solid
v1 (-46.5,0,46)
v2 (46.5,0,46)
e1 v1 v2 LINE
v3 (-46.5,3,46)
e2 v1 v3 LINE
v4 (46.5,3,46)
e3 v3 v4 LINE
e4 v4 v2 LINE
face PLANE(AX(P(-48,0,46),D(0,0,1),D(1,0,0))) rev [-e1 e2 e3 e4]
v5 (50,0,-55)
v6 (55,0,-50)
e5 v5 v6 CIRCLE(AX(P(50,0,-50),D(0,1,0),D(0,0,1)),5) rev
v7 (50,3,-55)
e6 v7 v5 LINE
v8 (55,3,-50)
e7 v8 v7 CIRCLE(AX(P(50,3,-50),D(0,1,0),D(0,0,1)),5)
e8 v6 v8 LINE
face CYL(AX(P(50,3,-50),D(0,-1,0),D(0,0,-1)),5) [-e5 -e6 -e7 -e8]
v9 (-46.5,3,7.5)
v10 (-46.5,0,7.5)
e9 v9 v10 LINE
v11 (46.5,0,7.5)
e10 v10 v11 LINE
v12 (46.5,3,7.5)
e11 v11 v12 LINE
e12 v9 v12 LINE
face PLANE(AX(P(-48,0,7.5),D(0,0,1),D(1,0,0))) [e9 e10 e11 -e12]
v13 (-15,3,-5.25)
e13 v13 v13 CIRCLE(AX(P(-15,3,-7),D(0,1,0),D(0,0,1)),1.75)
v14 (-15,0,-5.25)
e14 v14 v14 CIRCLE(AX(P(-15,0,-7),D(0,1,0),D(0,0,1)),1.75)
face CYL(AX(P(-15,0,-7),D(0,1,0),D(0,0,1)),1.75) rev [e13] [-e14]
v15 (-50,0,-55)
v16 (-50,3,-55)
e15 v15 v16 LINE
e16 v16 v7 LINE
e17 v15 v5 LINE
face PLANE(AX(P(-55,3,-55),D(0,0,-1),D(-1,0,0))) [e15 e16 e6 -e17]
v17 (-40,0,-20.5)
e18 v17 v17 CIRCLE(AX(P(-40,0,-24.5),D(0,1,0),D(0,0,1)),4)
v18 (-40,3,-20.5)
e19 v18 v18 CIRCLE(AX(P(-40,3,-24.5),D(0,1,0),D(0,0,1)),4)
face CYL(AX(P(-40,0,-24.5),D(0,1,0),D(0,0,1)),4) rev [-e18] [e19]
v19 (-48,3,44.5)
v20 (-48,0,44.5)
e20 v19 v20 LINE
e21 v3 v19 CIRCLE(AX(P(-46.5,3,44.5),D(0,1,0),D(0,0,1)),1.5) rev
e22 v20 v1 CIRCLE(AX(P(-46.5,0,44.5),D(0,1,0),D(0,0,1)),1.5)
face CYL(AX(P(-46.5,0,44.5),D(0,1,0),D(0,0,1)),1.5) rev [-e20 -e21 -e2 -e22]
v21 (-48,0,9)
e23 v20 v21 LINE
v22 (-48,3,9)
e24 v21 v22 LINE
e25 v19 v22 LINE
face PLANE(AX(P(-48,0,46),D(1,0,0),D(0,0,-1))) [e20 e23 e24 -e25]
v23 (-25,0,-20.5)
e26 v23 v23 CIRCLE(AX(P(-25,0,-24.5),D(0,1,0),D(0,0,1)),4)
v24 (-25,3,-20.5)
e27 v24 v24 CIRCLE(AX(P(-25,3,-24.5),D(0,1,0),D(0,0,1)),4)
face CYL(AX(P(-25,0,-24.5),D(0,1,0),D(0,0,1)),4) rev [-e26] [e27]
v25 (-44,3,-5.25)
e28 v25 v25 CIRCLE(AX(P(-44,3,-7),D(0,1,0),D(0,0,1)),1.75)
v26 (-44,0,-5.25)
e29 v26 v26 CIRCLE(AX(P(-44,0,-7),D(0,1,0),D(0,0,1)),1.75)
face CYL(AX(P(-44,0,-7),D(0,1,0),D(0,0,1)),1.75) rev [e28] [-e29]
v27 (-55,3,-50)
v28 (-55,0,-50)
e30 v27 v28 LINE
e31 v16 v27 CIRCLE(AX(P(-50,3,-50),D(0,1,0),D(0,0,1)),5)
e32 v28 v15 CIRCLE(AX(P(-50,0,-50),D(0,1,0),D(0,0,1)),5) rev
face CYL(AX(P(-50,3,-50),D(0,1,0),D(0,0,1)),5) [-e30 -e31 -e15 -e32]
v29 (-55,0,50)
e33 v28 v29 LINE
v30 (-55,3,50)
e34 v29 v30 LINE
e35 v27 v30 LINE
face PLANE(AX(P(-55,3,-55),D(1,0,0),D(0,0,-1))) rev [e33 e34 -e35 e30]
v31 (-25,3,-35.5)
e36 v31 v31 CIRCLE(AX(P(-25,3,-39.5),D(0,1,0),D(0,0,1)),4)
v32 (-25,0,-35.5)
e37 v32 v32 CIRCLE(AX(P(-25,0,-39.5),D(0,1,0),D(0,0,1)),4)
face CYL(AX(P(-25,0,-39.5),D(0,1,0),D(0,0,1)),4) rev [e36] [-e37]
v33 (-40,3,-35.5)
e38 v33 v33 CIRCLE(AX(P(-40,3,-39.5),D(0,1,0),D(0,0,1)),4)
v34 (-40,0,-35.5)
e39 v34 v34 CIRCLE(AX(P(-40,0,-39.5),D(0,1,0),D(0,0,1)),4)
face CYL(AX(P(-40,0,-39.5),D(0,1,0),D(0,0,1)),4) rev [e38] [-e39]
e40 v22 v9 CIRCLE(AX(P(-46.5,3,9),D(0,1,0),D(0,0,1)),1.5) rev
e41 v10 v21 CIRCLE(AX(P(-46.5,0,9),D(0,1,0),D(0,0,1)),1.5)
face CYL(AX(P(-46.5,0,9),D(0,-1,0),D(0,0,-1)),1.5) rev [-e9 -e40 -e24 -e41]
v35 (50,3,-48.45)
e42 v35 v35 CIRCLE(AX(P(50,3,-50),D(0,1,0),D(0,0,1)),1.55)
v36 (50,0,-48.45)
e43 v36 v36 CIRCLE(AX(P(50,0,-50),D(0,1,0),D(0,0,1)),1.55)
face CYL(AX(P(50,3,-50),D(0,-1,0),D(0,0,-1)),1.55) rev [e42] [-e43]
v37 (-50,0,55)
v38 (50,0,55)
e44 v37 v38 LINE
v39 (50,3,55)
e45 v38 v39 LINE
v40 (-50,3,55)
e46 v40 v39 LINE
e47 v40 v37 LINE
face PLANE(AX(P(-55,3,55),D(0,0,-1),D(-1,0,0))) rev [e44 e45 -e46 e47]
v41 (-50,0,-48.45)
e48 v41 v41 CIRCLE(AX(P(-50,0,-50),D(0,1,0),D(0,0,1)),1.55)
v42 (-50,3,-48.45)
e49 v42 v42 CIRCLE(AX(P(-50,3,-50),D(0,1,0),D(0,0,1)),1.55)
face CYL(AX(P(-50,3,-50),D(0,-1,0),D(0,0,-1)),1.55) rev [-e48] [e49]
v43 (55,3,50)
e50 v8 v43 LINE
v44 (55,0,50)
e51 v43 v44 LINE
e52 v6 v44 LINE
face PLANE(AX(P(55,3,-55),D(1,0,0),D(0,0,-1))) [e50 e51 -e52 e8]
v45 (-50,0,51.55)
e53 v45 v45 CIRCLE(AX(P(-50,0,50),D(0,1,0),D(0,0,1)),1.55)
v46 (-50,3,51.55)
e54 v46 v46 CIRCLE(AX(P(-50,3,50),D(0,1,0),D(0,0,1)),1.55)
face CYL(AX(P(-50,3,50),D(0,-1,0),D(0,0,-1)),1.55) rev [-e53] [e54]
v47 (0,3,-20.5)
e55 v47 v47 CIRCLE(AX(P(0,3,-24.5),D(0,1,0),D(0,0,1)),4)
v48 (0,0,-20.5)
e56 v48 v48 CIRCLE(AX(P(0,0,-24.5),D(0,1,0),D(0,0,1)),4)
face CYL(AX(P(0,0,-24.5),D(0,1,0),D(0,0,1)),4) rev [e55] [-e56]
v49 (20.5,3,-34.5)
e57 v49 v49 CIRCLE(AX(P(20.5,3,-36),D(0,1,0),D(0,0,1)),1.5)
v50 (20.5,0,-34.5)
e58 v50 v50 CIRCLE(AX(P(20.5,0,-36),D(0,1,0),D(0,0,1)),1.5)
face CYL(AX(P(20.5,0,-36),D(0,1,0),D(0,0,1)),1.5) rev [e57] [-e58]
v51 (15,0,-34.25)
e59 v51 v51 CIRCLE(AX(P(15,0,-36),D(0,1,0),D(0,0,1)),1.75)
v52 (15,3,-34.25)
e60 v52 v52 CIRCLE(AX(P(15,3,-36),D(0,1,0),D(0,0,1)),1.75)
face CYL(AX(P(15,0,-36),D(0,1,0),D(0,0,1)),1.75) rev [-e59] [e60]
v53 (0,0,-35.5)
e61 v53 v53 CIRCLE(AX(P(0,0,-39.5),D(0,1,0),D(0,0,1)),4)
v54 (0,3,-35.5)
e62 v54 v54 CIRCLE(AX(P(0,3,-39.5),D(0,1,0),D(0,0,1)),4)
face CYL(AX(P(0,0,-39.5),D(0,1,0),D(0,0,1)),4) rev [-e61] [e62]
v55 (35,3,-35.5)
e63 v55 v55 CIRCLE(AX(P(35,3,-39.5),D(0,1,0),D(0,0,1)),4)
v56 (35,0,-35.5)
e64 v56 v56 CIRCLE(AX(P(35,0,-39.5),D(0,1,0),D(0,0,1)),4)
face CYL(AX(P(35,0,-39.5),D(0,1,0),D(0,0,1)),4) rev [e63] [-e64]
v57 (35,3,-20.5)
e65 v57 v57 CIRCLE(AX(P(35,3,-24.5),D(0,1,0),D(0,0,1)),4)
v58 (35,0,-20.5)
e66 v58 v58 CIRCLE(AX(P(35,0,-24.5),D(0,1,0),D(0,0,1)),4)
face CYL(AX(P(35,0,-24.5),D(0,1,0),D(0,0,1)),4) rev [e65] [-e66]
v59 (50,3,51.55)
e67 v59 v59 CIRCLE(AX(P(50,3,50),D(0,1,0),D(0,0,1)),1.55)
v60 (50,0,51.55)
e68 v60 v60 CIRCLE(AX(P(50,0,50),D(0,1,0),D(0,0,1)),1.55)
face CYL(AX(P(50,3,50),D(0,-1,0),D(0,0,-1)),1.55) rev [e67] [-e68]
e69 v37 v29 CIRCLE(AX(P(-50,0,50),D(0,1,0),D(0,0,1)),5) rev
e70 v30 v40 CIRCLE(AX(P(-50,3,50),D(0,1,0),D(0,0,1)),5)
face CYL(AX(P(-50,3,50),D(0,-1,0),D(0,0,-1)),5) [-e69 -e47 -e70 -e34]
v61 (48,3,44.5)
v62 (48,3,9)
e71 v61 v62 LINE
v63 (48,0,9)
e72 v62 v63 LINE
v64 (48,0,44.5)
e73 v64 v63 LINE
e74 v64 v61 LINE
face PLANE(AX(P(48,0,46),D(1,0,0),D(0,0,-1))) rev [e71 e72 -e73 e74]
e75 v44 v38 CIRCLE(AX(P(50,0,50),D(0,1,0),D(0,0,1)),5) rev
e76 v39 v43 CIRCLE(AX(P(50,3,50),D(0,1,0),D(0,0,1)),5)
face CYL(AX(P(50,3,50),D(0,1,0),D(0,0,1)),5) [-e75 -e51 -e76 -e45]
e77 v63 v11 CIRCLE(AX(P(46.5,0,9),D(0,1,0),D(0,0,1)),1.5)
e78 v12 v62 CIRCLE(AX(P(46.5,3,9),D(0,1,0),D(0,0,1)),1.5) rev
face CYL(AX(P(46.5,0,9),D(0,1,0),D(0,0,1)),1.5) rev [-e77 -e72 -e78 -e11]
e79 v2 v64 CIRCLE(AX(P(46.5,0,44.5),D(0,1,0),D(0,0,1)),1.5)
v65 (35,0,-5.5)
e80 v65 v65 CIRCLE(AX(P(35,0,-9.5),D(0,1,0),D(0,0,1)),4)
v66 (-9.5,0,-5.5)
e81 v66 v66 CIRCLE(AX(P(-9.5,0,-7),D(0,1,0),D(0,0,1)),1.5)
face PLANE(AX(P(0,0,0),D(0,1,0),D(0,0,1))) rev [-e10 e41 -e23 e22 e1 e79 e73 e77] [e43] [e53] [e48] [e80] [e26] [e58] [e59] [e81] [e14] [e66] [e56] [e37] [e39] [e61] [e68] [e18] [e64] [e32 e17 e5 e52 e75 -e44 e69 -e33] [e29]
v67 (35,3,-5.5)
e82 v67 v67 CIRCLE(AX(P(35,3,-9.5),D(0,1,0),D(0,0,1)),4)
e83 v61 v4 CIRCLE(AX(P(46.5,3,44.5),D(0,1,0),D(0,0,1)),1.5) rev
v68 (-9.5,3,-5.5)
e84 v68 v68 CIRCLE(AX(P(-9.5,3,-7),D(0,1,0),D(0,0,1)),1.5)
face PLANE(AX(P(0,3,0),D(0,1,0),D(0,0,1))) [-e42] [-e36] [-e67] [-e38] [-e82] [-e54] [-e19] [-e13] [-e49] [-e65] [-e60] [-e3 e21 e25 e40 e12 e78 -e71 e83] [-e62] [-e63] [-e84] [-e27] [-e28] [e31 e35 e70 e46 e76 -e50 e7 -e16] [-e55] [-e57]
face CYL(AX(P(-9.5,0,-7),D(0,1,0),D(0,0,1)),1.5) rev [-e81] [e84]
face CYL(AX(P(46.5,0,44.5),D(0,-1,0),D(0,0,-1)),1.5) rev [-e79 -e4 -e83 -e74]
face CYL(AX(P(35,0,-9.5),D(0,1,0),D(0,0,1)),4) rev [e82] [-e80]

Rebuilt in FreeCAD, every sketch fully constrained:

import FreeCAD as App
import Part
import Sketcher


def edges_at(feature, points):
    """Names of the edges that pass closest to the given points."""
    edges = feature.Shape.Edges
    near = lambda p: min(range(len(edges)), key=lambda i: edges[i].distToShape(Part.Vertex(*p))[0])
    return sorted({f"Edge{near(p) + 1}" for p in points})


def add_polygon(sketch, points):
    """Adds a closed chain of lines whose ends are joined by coincident constraints."""
    first, n = sketch.GeometryCount, len(points)
    for a, b in zip(points, points[1:] + points[:1]):
        sketch.addGeometry(Part.LineSegment(App.Vector(*a, 0), App.Vector(*b, 0)), False)
    for i in range(n):
        sketch.addConstraint(Sketcher.Constraint("Coincident", first + i, 2, first + (i + 1) % n, 1))

doc = App.newDocument("Part")
body = doc.addObject("PartDesign::Body", "Body")

# Sketch on XZ plane
sketch1 = doc.addObject("Sketcher::SketchObject", "Sketch")
body.addObject(sketch1)
sketch1.AttachmentSupport = (doc.XZ_Plane, [""])
sketch1.MapMode = "FlatFace"
add_polygon(sketch1, [(-55, -55), (-55, 55), (55, 55), (55, -55)])  # lines 0-3
sketch1.addGeometry(Part.Circle(App.Vector(-50, 50, 0), App.Vector(0, 0, 1), 1.6), False)  # 4
sketch1.addGeometry(Part.Circle(App.Vector(50, 50, 0), App.Vector(0, 0, 1), 1.6), False)  # 5
sketch1.addGeometry(Part.Circle(App.Vector(-50, -50, 0), App.Vector(0, 0, 1), 1.6), False)  # 6
sketch1.addGeometry(Part.Circle(App.Vector(50, -50, 0), App.Vector(0, 0, 1), 1.6), False)  # 7
sketch1.addConstraint(Sketcher.Constraint("Vertical", 0))
sketch1.addConstraint(Sketcher.Constraint("Horizontal", 1))
sketch1.addConstraint(Sketcher.Constraint("Vertical", 2))
sketch1.addConstraint(Sketcher.Constraint("Horizontal", 3))
sketch1.addConstraint(Sketcher.Constraint("Equal", 4, 5))
sketch1.addConstraint(Sketcher.Constraint("Equal", 5, 6))
sketch1.addConstraint(Sketcher.Constraint("Equal", 6, 7))
sketch1.addConstraint(Sketcher.Constraint("Symmetric", 5, 3, 6, 3, -1, 1))
sketch1.addConstraint(Sketcher.Constraint("Symmetric", 4, 3, 7, 3, -1, 1))
sketch1.addConstraint(Sketcher.Constraint("Symmetric", 0, 2, 2, 2, -1, 1))
sketch1.addConstraint(Sketcher.Constraint("Symmetric", 4, 3, 5, 3, -2))
sketch1.addConstraint(Sketcher.Constraint("Equal", 3, 0))
sketch1.addConstraint(Sketcher.Constraint("Diameter", 4, 3.1))
sketch1.addConstraint(Sketcher.Constraint("DistanceX", 1, 1, 1, 2, 110.0))
sketch1.addConstraint(Sketcher.Constraint("DistanceX", 4, 3, -1, 1, 50.0))
sketch1.addConstraint(Sketcher.Constraint("DistanceY", -1, 1, 4, 3, 50.0))
pad1 = doc.addObject("PartDesign::Pad", "Pad")
body.addObject(pad1)
pad1.Profile = sketch1
pad1.Length = 3
pad1.Reversed = True
doc.recompute()

fillet = doc.addObject("PartDesign::Fillet", "Fillet")
body.addObject(fillet)
fillet.Base = (pad1, edges_at(pad1, [
    (-55, 1.5, -55),
    (55, 1.5, -55),
    (55, 1.5, 55),
    (-55, 1.5, 55),
]))
fillet.Radius = 5

# Sketch on XZ plane
sketch2 = doc.addObject("Sketcher::SketchObject", "Sketch001")
body.addObject(sketch2)
sketch2.AttachmentSupport = (doc.XZ_Plane, [""])
sketch2.MapMode = "FlatFace"
sketch2.AttachmentOffset = App.Placement(App.Vector(0, 0, -3), App.Rotation())
add_polygon(sketch2, [(-48, 8), (-48, 46), (48, 46), (48, 8)])  # lines 0-3
sketch2.addConstraint(Sketcher.Constraint("Vertical", 0))
sketch2.addConstraint(Sketcher.Constraint("Horizontal", 1))
sketch2.addConstraint(Sketcher.Constraint("Vertical", 2))
sketch2.addConstraint(Sketcher.Constraint("Horizontal", 3))
sketch2.addConstraint(Sketcher.Constraint("DistanceX", 1, 1, 1, 2, 96.0))
sketch2.addConstraint(Sketcher.Constraint("DistanceY", 0, 1, 0, 2, 38.5))
sketch2.addConstraint(Sketcher.Constraint("DistanceX", 0, 2, -1, 1, 48.0))
sketch2.addConstraint(Sketcher.Constraint("DistanceY", -1, 1, 0, 2, 46.0))
pocket1 = doc.addObject("PartDesign::Pocket", "Pocket")
body.addObject(pocket1)
pocket1.Profile = sketch2
pocket1.Type = "ThroughAll"
pocket1.Reversed = True
doc.recompute()

fillet2 = doc.addObject("PartDesign::Fillet", "Fillet001")
body.addObject(fillet2)
fillet2.Base = (pocket1, edges_at(pocket1, [
    (-48, 1.5, 46),
    (-48, 1.5, 7.5),
    (48, 1.5, 7.5),
    (48, 1.5, 46),
]))
fillet2.Radius = 1.5

# Sketch on XZ plane
sketch3 = doc.addObject("Sketcher::SketchObject", "Sketch002")
body.addObject(sketch3)
sketch3.AttachmentSupport = (doc.XZ_Plane, [""])
sketch3.MapMode = "FlatFace"
sketch3.AttachmentOffset = App.Placement(App.Vector(0, 0, -3), App.Rotation())
sketch3.addGeometry(Part.Circle(App.Vector(-40, -39.5, 0), App.Vector(0, 0, 1), 4), False)
sketch3.addGeometry(Part.Circle(App.Vector(-40, -24.5, 0), App.Vector(0, 0, 1), 4), False)
sketch3.addGeometry(Part.Circle(App.Vector(-25, -39.5, 0), App.Vector(0, 0, 1), 4), False)
sketch3.addGeometry(Part.Circle(App.Vector(-25, -24.5, 0), App.Vector(0, 0, 1), 4), False)
sketch3.addGeometry(Part.Circle(App.Vector(0, -39.5, 0), App.Vector(0, 0, 1), 4), False)
sketch3.addGeometry(Part.Circle(App.Vector(0, -24.5, 0), App.Vector(0, 0, 1), 4), False)
sketch3.addGeometry(Part.Circle(App.Vector(35, -39.5, 0), App.Vector(0, 0, 1), 4), False)
sketch3.addGeometry(Part.Circle(App.Vector(35, -24.5, 0), App.Vector(0, 0, 1), 4), False)
sketch3.addGeometry(Part.Circle(App.Vector(35, -9.5, 0), App.Vector(0, 0, 1), 4), False)
sketch3.addConstraint(Sketcher.Constraint("Equal", 0, 1))
sketch3.addConstraint(Sketcher.Constraint("Equal", 1, 2))
sketch3.addConstraint(Sketcher.Constraint("Equal", 2, 3))
sketch3.addConstraint(Sketcher.Constraint("Equal", 3, 4))
sketch3.addConstraint(Sketcher.Constraint("Equal", 4, 5))
sketch3.addConstraint(Sketcher.Constraint("Equal", 5, 6))
sketch3.addConstraint(Sketcher.Constraint("Equal", 6, 7))
sketch3.addConstraint(Sketcher.Constraint("Equal", 7, 8))
sketch3.addConstraint(Sketcher.Constraint("PointOnObject", 4, 3, -2))
sketch3.addConstraint(Sketcher.Constraint("PointOnObject", 5, 3, -2))
sketch3.addConstraint(Sketcher.Constraint("Horizontal", 0, 3, 2, 3))
sketch3.addConstraint(Sketcher.Constraint("Horizontal", 1, 3, 3, 3))
sketch3.addConstraint(Sketcher.Constraint("Horizontal", 2, 3, 4, 3))
sketch3.addConstraint(Sketcher.Constraint("Horizontal", 3, 3, 5, 3))
sketch3.addConstraint(Sketcher.Constraint("Horizontal", 4, 3, 6, 3))
sketch3.addConstraint(Sketcher.Constraint("Horizontal", 5, 3, 7, 3))
sketch3.addConstraint(Sketcher.Constraint("Vertical", 0, 3, 1, 3))
sketch3.addConstraint(Sketcher.Constraint("Vertical", 2, 3, 3, 3))
sketch3.addConstraint(Sketcher.Constraint("Vertical", 6, 3, 7, 3))
sketch3.addConstraint(Sketcher.Constraint("Vertical", 7, 3, 8, 3))
sketch3.addConstraint(Sketcher.Constraint("Diameter", 0, 8.0))
sketch3.addConstraint(Sketcher.Constraint("DistanceX", 0, 3, -1, 1, 40.0))
sketch3.addConstraint(Sketcher.Constraint("DistanceX", 2, 3, -1, 1, 25.0))
sketch3.addConstraint(Sketcher.Constraint("DistanceX", -1, 1, 6, 3, 35.0))
sketch3.addConstraint(Sketcher.Constraint("DistanceY", 0, 3, 1, 3, 15.0))
sketch3.addConstraint(Sketcher.Constraint("DistanceY", 7, 3, 8, 3, 15.0))
sketch3.addConstraint(Sketcher.Constraint("DistanceY", 0, 3, -1, 1, 39.5))
pocket2 = doc.addObject("PartDesign::Pocket", "Pocket001")
body.addObject(pocket2)
pocket2.Profile = sketch3
pocket2.Type = "ThroughAll"
pocket2.Reversed = True

# Sketch on XZ plane
sketch4 = doc.addObject("Sketcher::SketchObject", "Sketch003")
body.addObject(sketch4)
sketch4.AttachmentSupport = (doc.XZ_Plane, [""])
sketch4.MapMode = "FlatFace"
sketch4.AttachmentOffset = App.Placement(App.Vector(0, 0, -3), App.Rotation())
sketch4.addGeometry(Part.Circle(App.Vector(-44, -7, 0), App.Vector(0, 0, 1), 1.8), False)
sketch4.addGeometry(Part.Circle(App.Vector(-15, -7, 0), App.Vector(0, 0, 1), 1.8), False)
sketch4.addGeometry(Part.Circle(App.Vector(-9.5, -7, 0), App.Vector(0, 0, 1), 1.5), False)
sketch4.addGeometry(Part.Circle(App.Vector(15, -36, 0), App.Vector(0, 0, 1), 1.8), False)
sketch4.addGeometry(Part.Circle(App.Vector(20.5, -36, 0), App.Vector(0, 0, 1), 1.5), False)
sketch4.addConstraint(Sketcher.Constraint("Equal", 0, 1))
sketch4.addConstraint(Sketcher.Constraint("Equal", 1, 3))
sketch4.addConstraint(Sketcher.Constraint("Equal", 2, 4))
sketch4.addConstraint(Sketcher.Constraint("Horizontal", 0, 3, 1, 3))
sketch4.addConstraint(Sketcher.Constraint("Horizontal", 1, 3, 2, 3))
sketch4.addConstraint(Sketcher.Constraint("Horizontal", 3, 3, 4, 3))
sketch4.addConstraint(Sketcher.Constraint("Diameter", 2, 3.0))
sketch4.addConstraint(Sketcher.Constraint("Diameter", 0, 3.5))
sketch4.addConstraint(Sketcher.Constraint("DistanceX", 0, 3, -1, 1, 44.0))
sketch4.addConstraint(Sketcher.Constraint("DistanceY", 0, 3, -1, 1, 7.0))
sketch4.addConstraint(Sketcher.Constraint("DistanceX", 1, 3, -1, 1, 15.0))
sketch4.addConstraint(Sketcher.Constraint("DistanceX", -1, 1, 3, 3, 15.0))
sketch4.addConstraint(Sketcher.Constraint("DistanceY", 3, 3, -1, 1, 36.0))
sketch4.addConstraint(Sketcher.Constraint("DistanceX", 2, 3, 4, 3, 30.0))
sketch4.addConstraint(Sketcher.Constraint("DistanceX", 2, 3, -1, 1, 9.5))
pocket3 = doc.addObject("PartDesign::Pocket", "Pocket002")
body.addObject(pocket3)
pocket3.Profile = sketch4
pocket3.Type = "ThroughAll"
pocket3.Reversed = True

doc.recompute()
